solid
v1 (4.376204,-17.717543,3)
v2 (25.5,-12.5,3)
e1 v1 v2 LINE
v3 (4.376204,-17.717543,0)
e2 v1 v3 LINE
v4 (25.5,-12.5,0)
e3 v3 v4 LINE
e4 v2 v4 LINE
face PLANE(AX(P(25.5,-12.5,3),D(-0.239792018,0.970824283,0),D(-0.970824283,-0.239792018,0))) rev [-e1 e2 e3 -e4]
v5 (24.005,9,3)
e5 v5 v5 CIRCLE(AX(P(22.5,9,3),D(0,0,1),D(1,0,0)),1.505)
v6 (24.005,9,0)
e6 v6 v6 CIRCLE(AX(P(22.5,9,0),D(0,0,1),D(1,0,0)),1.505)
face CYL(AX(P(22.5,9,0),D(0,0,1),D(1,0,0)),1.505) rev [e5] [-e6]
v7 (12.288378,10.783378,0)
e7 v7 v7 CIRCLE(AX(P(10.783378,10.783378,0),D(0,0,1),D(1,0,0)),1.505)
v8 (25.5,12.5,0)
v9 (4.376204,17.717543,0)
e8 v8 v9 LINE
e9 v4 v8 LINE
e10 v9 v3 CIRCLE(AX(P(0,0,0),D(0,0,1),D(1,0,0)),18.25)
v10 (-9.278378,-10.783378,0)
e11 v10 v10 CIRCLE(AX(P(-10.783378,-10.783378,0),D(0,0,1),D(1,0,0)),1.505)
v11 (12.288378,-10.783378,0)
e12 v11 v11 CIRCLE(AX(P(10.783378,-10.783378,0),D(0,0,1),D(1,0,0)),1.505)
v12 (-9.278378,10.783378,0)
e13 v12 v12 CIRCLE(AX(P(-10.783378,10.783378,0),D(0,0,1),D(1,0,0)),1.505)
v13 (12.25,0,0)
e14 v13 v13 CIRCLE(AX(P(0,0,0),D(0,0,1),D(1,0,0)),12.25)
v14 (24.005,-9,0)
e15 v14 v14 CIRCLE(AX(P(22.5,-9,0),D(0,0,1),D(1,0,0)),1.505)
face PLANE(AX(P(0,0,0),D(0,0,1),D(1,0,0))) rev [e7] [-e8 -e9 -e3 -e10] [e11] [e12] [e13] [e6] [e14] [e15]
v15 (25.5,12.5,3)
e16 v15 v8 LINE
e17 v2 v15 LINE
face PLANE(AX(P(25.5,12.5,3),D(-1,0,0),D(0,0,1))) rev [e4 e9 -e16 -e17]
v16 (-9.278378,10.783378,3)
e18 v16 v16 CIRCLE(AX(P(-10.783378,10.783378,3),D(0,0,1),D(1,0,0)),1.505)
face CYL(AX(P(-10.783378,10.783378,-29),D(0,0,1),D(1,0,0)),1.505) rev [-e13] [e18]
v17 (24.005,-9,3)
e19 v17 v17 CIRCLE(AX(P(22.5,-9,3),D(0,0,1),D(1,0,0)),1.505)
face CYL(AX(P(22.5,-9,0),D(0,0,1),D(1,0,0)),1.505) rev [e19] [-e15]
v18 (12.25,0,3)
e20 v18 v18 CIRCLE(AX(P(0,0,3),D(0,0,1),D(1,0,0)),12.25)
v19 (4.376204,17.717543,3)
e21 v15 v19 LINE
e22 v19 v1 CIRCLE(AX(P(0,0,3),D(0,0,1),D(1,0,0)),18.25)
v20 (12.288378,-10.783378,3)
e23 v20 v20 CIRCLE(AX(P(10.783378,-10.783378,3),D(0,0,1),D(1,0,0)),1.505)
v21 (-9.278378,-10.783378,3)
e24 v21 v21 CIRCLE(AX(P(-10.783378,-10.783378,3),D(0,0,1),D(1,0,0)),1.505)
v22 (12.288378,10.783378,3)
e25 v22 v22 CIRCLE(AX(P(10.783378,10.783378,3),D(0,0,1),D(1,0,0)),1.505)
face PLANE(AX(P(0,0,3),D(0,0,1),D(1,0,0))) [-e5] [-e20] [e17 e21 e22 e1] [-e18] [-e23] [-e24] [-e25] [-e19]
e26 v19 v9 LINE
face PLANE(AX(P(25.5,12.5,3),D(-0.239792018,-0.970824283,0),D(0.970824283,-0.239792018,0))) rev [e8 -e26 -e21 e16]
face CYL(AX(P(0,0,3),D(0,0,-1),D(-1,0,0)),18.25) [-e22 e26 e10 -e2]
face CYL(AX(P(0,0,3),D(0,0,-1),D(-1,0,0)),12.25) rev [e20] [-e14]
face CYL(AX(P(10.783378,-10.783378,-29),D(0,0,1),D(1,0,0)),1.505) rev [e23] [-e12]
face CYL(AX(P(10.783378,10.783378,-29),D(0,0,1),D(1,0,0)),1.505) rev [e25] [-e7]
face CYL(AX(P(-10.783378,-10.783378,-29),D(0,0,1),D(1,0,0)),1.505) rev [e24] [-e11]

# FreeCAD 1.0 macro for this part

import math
import FreeCAD as App
import Part
import Sketcher
from FreeCAD import Vector

doc = App.newDocument("Part")
body = doc.addObject("PartDesign::Body", "Body")

# Sketch on XY plane
sketch1 = body.newObject("Sketcher::SketchObject", "Sketch")
sketch1.AttachmentSupport = (doc.getObject("XY_Plane"), [""])
sketch1.MapMode = "FlatFace"
sketch1.addGeometry(Part.LineSegment(Vector(26, -12, 0), Vector(26, 12, 0)), False)
sketch1.addGeometry(Part.LineSegment(Vector(26, 12, 0), Vector(4, 18, 0)), False)
sketch1.addGeometry(Part.ArcOfCircle(Part.Circle(Vector(0, 0, 0), Vector(0, 0, 1), 18), math.radians(76), math.radians(284)), False)
sketch1.addGeometry(Part.LineSegment(Vector(4, -18, 0), Vector(26, -12, 0)), False)
sketch1.addGeometry(Part.Circle(Vector(0, 0, 0), Vector(0, 0, 1), 12), False)
sketch1.addConstraint(Sketcher.Constraint("Coincident", 0, 2, 1, 1))
sketch1.addConstraint(Sketcher.Constraint("Tangent", 1, 2, 2, 1))
sketch1.addConstraint(Sketcher.Constraint("Tangent", 2, 2, 3, 1))
sketch1.addConstraint(Sketcher.Constraint("Coincident", 3, 2, 0, 1))
sketch1.addConstraint(Sketcher.Constraint("Vertical", 0))
sketch1.addConstraint(Sketcher.Constraint("Coincident", 2, 3, -1, 1))
sketch1.addConstraint(Sketcher.Constraint("Coincident", 4, 3, -1, 1))
sketch1.addConstraint(Sketcher.Constraint("Vertical", 1, 2, 2, 2))
sketch1.addConstraint(Sketcher.Constraint("Diameter", 4, 24.5))
sketch1.addConstraint(Sketcher.Constraint("DistanceY", 0, 1, 0, 2, 25.0))
sketch1.addConstraint(Sketcher.Constraint("Radius", 2, 18.25))
sketch1.addConstraint(Sketcher.Constraint("DistanceX", -1, 1, 0, 2, 25.5))
pad1 = body.newObject("PartDesign::Pad", "Pad")
pad1.Profile = sketch1
pad1.Length = 3

# Sketch on XY plane
sketch2 = body.newObject("Sketcher::SketchObject", "Sketch001")
sketch2.AttachmentSupport = (doc.getObject("XY_Plane"), [""])
sketch2.MapMode = "FlatFace"
sketch2.AttachmentOffset = App.Placement(Vector(0, 0, 3), App.Rotation())
sketch2.addGeometry(Part.Circle(Vector(-10.8, 10.8, 0), Vector(0, 0, 1), 1.5), False)
sketch2.addGeometry(Part.Circle(Vector(10.8, 10.8, 0), Vector(0, 0, 1), 1.5), False)
sketch2.addGeometry(Part.Circle(Vector(10.8, -10.8, 0), Vector(0, 0, 1), 1.5), False)
sketch2.addGeometry(Part.Circle(Vector(-10.8, -10.8, 0), Vector(0, 0, 1), 1.5), False)
sketch2.addConstraint(Sketcher.Constraint("Equal", 0, 1))
sketch2.addConstraint(Sketcher.Constraint("Equal", 1, 2))
sketch2.addConstraint(Sketcher.Constraint("Equal", 2, 3))
sketch2.addConstraint(Sketcher.Constraint("Symmetric", 0, 3, 2, 3, -1, 1))
sketch2.addConstraint(Sketcher.Constraint("Symmetric", 1, 3, 3, 3, -1, 1))
sketch2.addConstraint(Sketcher.Constraint("Symmetric", 0, 3, 1, 3, -2))
sketch2.addConstraint(Sketcher.Constraint("Diameter", 0, 3.01))
sketch2.addConstraint(Sketcher.Constraint("DistanceX", 0, 3, -1, 1, 10.783378))
sketch2.addConstraint(Sketcher.Constraint("DistanceY", -1, 1, 0, 3, 10.783378))
pocket1 = body.newObject("PartDesign::Pocket", "Pocket")
pocket1.Profile = sketch2
pocket1.Length = 32

# Sketch on XY plane
sketch3 = body.newObject("Sketcher::SketchObject", "Sketch002")
sketch3.AttachmentSupport = (doc.getObject("XY_Plane"), [""])
sketch3.MapMode = "FlatFace"
sketch3.AttachmentOffset = App.Placement(Vector(0, 0, 3), App.Rotation())
sketch3.addGeometry(Part.Circle(Vector(22.5, -9, 0), Vector(0, 0, 1), 1.5), False)
sketch3.addGeometry(Part.Circle(Vector(22.5, 9, 0), Vector(0, 0, 1), 1.5), False)
sketch3.addConstraint(Sketcher.Constraint("Equal", 0, 1))
sketch3.addConstraint(Sketcher.Constraint("Symmetric", 0, 3, 1, 3, -1))
sketch3.addConstraint(Sketcher.Constraint("Diameter", 0, 3.01))
sketch3.addConstraint(Sketcher.Constraint("DistanceY", 0, 3, -1, 1, 9.0))
sketch3.addConstraint(Sketcher.Constraint("DistanceX", -1, 1, 0, 3, 22.5))
pocket2 = body.newObject("PartDesign::Pocket", "Pocket001")
pocket2.Profile = sketch3
pocket2.Length = 6
pocket2.Midplane = True

doc.recompute()
